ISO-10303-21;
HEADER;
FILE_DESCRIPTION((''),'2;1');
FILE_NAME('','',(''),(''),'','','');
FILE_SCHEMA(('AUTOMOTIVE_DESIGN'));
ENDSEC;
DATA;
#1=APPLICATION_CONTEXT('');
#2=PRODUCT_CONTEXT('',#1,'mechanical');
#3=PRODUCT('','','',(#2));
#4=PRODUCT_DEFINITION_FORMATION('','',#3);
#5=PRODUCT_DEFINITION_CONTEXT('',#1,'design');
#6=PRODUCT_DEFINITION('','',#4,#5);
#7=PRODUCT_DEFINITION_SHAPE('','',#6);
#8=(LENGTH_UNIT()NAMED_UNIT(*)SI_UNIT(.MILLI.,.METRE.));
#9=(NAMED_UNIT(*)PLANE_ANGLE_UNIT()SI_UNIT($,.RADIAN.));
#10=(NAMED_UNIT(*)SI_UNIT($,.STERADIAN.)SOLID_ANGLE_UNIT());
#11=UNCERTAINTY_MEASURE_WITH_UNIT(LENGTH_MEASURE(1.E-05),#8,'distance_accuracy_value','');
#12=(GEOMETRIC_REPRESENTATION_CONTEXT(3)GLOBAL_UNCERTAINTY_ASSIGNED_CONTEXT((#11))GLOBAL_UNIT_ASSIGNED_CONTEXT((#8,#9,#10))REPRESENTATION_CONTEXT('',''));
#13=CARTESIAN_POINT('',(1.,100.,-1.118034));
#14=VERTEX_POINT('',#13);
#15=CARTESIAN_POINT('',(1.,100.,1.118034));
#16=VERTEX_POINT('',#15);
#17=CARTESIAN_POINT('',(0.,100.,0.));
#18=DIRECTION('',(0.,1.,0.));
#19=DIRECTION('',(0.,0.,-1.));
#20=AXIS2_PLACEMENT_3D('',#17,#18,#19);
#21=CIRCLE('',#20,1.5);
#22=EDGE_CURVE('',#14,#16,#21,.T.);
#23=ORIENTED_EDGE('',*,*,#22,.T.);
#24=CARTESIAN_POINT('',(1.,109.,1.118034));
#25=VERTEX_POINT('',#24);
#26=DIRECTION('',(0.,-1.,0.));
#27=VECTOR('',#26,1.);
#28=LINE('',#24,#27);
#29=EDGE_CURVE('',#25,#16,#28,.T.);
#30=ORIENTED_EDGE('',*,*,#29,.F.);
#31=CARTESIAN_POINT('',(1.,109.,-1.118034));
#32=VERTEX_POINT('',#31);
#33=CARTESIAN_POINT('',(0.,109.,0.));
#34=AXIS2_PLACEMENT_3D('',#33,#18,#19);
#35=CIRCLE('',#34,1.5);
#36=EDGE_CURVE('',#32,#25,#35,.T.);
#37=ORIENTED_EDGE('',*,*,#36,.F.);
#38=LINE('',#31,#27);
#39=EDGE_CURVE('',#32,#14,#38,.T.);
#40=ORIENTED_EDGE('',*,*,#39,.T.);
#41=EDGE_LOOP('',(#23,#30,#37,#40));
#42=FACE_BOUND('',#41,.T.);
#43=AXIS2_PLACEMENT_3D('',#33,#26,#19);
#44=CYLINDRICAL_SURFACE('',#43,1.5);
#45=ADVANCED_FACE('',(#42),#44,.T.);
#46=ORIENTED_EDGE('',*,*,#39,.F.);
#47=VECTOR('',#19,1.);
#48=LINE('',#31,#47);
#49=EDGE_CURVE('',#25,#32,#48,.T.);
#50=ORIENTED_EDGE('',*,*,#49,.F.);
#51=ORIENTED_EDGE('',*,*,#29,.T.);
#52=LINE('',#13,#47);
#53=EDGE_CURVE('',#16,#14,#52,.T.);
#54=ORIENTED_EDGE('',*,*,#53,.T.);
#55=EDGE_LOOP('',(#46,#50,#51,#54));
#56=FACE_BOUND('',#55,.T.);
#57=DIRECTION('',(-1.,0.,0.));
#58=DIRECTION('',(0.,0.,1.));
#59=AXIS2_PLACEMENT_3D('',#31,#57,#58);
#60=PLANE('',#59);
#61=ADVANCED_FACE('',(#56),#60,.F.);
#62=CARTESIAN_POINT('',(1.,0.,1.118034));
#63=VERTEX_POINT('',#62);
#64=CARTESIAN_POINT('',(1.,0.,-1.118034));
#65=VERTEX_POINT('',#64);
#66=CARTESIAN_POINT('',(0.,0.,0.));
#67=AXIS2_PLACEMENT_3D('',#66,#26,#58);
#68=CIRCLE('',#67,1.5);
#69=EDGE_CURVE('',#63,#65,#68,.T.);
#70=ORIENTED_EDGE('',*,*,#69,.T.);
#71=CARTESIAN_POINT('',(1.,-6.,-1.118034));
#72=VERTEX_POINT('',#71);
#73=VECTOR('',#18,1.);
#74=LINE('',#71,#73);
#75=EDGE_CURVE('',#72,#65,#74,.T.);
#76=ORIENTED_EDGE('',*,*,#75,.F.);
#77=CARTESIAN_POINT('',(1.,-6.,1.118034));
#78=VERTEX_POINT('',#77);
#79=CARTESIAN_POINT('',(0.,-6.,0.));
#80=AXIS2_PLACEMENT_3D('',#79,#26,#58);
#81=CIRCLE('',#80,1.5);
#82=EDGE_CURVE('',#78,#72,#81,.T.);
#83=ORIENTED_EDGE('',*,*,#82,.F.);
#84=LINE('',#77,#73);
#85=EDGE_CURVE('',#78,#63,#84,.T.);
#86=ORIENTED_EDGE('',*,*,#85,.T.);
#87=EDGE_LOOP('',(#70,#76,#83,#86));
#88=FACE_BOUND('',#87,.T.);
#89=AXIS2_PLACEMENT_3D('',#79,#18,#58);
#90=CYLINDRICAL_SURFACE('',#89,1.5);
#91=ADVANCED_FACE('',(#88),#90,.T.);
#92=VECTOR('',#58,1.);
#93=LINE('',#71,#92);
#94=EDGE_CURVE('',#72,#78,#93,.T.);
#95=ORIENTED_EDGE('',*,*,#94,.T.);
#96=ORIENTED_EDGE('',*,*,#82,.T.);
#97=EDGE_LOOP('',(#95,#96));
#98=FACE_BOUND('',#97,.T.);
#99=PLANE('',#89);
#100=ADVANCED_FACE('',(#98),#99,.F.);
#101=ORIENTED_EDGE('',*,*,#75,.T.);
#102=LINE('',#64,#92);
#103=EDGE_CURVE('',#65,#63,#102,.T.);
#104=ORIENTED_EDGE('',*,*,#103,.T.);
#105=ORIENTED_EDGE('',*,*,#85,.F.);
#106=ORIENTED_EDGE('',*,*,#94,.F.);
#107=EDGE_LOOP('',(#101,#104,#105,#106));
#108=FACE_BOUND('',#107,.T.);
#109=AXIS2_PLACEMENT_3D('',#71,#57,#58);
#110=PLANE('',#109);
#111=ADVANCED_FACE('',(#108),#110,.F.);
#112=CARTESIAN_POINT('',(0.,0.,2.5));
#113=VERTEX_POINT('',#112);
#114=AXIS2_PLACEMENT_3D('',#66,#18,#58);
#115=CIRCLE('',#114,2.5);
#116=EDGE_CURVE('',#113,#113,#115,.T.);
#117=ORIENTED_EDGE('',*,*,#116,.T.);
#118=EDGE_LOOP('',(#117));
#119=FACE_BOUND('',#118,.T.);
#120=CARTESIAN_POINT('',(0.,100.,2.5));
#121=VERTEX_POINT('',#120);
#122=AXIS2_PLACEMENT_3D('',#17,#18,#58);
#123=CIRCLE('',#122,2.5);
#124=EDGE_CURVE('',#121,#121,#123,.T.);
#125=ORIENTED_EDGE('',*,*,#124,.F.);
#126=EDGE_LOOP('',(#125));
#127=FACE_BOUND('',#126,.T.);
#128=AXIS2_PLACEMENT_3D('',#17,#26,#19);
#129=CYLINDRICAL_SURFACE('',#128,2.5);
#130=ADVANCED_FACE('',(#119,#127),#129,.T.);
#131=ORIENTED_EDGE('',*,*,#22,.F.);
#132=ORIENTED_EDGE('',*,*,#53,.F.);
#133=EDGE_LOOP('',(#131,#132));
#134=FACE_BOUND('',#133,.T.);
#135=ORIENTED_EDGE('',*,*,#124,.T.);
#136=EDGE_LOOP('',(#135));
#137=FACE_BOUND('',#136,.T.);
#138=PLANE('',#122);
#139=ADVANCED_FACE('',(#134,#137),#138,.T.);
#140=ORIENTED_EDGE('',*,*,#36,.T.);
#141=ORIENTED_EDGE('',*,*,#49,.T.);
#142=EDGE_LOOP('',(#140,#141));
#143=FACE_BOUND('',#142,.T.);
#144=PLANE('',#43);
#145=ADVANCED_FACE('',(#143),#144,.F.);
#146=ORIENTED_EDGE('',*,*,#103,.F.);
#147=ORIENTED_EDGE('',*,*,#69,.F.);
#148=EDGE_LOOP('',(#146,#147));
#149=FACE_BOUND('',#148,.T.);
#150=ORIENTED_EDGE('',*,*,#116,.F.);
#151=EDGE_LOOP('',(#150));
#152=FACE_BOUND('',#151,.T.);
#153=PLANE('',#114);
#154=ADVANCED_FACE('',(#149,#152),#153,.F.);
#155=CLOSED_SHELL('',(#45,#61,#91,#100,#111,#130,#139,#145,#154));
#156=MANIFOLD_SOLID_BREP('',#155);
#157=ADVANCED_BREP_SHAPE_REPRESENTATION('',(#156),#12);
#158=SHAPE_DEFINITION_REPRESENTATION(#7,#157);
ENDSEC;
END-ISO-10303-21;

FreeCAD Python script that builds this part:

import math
import FreeCAD as App
import Part
import Sketcher
from FreeCAD import Vector
Q = App.Units.Quantity

doc = App.newDocument("Part")
params = doc.addObject("Spreadsheet::Sheet", "Params")
for row, (alias, value) in enumerate([
    ("sketch1_diameter", "5 mm"),
    ("pad1_length", "100 mm"),
    ("sketch2_radius", "1.5 mm"),
    ("pad2_length", "9 mm"),
    ("sketch3_radius", "1.5 mm"),
    ("pad3_length", "6 mm"),
], start=1):
    params.set(f"A{row}", alias)
    params.set(f"B{row}", "=" + value)
    params.setAlias(f"B{row}", alias)

body = doc.addObject("PartDesign::Body", "Body")

sketch1 = doc.addObject("Sketcher::SketchObject", "Sketch")
body.addObject(sketch1)
sketch1.AttachmentSupport = (doc.XZ_Plane, [""])
sketch1.MapMode = "FlatFace"
sketch1.addGeometry(Part.Circle(Vector(0, 0, 0), Vector(0, 0, 1), 2.5), False)
sketch1.addConstraint(Sketcher.Constraint("Coincident", 0, 3, -1, 1))
sketch1.addConstraint(Sketcher.Constraint("Diameter", 0, Q("5 mm")))
sketch1.setExpression("Constraints[1]", "Params.sketch1_diameter")
pad1 = doc.addObject("PartDesign::Pad", "Pad")
body.addObject(pad1)
pad1.Profile = sketch1
pad1.setExpression("Length", "Params.pad1_length")
pad1.Reversed = True

sketch2 = doc.addObject("Sketcher::SketchObject", "Sketch001")
body.addObject(sketch2)
sketch2.AttachmentSupport = (doc.XZ_Plane, [""])
sketch2.MapMode = "FlatFace"
sketch2.AttachmentOffset = App.Placement(Vector(0, 0, -100), App.Rotation())
sketch2.addGeometry(Part.LineSegment(Vector(1, 1.118034, 0), Vector(1, -1.118034, 0)), False)
sketch2.addGeometry(Part.ArcOfCircle(Part.Circle(Vector(0, 0, 0), Vector(0, 0, 1), 1.5), math.radians(48.189685), math.radians(311.810315)), False)
sketch2.addConstraint(Sketcher.Constraint("Coincident", 0, 1, 1, 1))
sketch2.addConstraint(Sketcher.Constraint("Coincident", 1, 2, 0, 2))
sketch2.addConstraint(Sketcher.Constraint("Vertical", 0))
sketch2.addConstraint(Sketcher.Constraint("Coincident", 1, 3, -1, 1))
sketch2.addConstraint(Sketcher.Constraint("Radius", 1, Q("1.5 mm")))
sketch2.addConstraint(Sketcher.Constraint("DistanceX", -1, 1, 0, 1, Q("1 mm")))
sketch2.setExpression("Constraints[4]", "Params.sketch2_radius")
pad2 = doc.addObject("PartDesign::Pad", "Pad001")
body.addObject(pad2)
pad2.Profile = sketch2
pad2.setExpression("Length", "Params.pad2_length")
pad2.Reversed = True

sketch3 = doc.addObject("Sketcher::SketchObject", "Sketch002")
body.addObject(sketch3)
sketch3.AttachmentSupport = (doc.XZ_Plane, [""])
sketch3.MapMode = "FlatFace"
sketch3.AttachmentOffset = App.Placement(Vector(0, 0, 6), App.Rotation())
sketch3.addGeometry(Part.LineSegment(Vector(1, -1.118034, 0), Vector(1, 1.118034, 0)), False)
sketch3.addGeometry(Part.ArcOfCircle(Part.Circle(Vector(0, 0, 0), Vector(0, 0, 1), 1.5), math.radians(48.189685), math.radians(311.810315)), False)
sketch3.addConstraint(Sketcher.Constraint("Coincident", 0, 1, 1, 2))
sketch3.addConstraint(Sketcher.Constraint("Coincident", 1, 1, 0, 2))
sketch3.addConstraint(Sketcher.Constraint("Vertical", 0))
sketch3.addConstraint(Sketcher.Constraint("Coincident", 1, 3, -1, 1))
sketch3.addConstraint(Sketcher.Constraint("Radius", 1, Q("1.5 mm")))
sketch3.addConstraint(Sketcher.Constraint("DistanceX", -1, 1, 0, 1, Q("1 mm")))
sketch3.setExpression("Constraints[4]", "Params.sketch3_radius")
pad3 = doc.addObject("PartDesign::Pad", "Pad002")
body.addObject(pad3)
pad3.Profile = sketch3
pad3.setExpression("Length", "Params.pad3_length")
pad3.Reversed = True

doc.recompute()
